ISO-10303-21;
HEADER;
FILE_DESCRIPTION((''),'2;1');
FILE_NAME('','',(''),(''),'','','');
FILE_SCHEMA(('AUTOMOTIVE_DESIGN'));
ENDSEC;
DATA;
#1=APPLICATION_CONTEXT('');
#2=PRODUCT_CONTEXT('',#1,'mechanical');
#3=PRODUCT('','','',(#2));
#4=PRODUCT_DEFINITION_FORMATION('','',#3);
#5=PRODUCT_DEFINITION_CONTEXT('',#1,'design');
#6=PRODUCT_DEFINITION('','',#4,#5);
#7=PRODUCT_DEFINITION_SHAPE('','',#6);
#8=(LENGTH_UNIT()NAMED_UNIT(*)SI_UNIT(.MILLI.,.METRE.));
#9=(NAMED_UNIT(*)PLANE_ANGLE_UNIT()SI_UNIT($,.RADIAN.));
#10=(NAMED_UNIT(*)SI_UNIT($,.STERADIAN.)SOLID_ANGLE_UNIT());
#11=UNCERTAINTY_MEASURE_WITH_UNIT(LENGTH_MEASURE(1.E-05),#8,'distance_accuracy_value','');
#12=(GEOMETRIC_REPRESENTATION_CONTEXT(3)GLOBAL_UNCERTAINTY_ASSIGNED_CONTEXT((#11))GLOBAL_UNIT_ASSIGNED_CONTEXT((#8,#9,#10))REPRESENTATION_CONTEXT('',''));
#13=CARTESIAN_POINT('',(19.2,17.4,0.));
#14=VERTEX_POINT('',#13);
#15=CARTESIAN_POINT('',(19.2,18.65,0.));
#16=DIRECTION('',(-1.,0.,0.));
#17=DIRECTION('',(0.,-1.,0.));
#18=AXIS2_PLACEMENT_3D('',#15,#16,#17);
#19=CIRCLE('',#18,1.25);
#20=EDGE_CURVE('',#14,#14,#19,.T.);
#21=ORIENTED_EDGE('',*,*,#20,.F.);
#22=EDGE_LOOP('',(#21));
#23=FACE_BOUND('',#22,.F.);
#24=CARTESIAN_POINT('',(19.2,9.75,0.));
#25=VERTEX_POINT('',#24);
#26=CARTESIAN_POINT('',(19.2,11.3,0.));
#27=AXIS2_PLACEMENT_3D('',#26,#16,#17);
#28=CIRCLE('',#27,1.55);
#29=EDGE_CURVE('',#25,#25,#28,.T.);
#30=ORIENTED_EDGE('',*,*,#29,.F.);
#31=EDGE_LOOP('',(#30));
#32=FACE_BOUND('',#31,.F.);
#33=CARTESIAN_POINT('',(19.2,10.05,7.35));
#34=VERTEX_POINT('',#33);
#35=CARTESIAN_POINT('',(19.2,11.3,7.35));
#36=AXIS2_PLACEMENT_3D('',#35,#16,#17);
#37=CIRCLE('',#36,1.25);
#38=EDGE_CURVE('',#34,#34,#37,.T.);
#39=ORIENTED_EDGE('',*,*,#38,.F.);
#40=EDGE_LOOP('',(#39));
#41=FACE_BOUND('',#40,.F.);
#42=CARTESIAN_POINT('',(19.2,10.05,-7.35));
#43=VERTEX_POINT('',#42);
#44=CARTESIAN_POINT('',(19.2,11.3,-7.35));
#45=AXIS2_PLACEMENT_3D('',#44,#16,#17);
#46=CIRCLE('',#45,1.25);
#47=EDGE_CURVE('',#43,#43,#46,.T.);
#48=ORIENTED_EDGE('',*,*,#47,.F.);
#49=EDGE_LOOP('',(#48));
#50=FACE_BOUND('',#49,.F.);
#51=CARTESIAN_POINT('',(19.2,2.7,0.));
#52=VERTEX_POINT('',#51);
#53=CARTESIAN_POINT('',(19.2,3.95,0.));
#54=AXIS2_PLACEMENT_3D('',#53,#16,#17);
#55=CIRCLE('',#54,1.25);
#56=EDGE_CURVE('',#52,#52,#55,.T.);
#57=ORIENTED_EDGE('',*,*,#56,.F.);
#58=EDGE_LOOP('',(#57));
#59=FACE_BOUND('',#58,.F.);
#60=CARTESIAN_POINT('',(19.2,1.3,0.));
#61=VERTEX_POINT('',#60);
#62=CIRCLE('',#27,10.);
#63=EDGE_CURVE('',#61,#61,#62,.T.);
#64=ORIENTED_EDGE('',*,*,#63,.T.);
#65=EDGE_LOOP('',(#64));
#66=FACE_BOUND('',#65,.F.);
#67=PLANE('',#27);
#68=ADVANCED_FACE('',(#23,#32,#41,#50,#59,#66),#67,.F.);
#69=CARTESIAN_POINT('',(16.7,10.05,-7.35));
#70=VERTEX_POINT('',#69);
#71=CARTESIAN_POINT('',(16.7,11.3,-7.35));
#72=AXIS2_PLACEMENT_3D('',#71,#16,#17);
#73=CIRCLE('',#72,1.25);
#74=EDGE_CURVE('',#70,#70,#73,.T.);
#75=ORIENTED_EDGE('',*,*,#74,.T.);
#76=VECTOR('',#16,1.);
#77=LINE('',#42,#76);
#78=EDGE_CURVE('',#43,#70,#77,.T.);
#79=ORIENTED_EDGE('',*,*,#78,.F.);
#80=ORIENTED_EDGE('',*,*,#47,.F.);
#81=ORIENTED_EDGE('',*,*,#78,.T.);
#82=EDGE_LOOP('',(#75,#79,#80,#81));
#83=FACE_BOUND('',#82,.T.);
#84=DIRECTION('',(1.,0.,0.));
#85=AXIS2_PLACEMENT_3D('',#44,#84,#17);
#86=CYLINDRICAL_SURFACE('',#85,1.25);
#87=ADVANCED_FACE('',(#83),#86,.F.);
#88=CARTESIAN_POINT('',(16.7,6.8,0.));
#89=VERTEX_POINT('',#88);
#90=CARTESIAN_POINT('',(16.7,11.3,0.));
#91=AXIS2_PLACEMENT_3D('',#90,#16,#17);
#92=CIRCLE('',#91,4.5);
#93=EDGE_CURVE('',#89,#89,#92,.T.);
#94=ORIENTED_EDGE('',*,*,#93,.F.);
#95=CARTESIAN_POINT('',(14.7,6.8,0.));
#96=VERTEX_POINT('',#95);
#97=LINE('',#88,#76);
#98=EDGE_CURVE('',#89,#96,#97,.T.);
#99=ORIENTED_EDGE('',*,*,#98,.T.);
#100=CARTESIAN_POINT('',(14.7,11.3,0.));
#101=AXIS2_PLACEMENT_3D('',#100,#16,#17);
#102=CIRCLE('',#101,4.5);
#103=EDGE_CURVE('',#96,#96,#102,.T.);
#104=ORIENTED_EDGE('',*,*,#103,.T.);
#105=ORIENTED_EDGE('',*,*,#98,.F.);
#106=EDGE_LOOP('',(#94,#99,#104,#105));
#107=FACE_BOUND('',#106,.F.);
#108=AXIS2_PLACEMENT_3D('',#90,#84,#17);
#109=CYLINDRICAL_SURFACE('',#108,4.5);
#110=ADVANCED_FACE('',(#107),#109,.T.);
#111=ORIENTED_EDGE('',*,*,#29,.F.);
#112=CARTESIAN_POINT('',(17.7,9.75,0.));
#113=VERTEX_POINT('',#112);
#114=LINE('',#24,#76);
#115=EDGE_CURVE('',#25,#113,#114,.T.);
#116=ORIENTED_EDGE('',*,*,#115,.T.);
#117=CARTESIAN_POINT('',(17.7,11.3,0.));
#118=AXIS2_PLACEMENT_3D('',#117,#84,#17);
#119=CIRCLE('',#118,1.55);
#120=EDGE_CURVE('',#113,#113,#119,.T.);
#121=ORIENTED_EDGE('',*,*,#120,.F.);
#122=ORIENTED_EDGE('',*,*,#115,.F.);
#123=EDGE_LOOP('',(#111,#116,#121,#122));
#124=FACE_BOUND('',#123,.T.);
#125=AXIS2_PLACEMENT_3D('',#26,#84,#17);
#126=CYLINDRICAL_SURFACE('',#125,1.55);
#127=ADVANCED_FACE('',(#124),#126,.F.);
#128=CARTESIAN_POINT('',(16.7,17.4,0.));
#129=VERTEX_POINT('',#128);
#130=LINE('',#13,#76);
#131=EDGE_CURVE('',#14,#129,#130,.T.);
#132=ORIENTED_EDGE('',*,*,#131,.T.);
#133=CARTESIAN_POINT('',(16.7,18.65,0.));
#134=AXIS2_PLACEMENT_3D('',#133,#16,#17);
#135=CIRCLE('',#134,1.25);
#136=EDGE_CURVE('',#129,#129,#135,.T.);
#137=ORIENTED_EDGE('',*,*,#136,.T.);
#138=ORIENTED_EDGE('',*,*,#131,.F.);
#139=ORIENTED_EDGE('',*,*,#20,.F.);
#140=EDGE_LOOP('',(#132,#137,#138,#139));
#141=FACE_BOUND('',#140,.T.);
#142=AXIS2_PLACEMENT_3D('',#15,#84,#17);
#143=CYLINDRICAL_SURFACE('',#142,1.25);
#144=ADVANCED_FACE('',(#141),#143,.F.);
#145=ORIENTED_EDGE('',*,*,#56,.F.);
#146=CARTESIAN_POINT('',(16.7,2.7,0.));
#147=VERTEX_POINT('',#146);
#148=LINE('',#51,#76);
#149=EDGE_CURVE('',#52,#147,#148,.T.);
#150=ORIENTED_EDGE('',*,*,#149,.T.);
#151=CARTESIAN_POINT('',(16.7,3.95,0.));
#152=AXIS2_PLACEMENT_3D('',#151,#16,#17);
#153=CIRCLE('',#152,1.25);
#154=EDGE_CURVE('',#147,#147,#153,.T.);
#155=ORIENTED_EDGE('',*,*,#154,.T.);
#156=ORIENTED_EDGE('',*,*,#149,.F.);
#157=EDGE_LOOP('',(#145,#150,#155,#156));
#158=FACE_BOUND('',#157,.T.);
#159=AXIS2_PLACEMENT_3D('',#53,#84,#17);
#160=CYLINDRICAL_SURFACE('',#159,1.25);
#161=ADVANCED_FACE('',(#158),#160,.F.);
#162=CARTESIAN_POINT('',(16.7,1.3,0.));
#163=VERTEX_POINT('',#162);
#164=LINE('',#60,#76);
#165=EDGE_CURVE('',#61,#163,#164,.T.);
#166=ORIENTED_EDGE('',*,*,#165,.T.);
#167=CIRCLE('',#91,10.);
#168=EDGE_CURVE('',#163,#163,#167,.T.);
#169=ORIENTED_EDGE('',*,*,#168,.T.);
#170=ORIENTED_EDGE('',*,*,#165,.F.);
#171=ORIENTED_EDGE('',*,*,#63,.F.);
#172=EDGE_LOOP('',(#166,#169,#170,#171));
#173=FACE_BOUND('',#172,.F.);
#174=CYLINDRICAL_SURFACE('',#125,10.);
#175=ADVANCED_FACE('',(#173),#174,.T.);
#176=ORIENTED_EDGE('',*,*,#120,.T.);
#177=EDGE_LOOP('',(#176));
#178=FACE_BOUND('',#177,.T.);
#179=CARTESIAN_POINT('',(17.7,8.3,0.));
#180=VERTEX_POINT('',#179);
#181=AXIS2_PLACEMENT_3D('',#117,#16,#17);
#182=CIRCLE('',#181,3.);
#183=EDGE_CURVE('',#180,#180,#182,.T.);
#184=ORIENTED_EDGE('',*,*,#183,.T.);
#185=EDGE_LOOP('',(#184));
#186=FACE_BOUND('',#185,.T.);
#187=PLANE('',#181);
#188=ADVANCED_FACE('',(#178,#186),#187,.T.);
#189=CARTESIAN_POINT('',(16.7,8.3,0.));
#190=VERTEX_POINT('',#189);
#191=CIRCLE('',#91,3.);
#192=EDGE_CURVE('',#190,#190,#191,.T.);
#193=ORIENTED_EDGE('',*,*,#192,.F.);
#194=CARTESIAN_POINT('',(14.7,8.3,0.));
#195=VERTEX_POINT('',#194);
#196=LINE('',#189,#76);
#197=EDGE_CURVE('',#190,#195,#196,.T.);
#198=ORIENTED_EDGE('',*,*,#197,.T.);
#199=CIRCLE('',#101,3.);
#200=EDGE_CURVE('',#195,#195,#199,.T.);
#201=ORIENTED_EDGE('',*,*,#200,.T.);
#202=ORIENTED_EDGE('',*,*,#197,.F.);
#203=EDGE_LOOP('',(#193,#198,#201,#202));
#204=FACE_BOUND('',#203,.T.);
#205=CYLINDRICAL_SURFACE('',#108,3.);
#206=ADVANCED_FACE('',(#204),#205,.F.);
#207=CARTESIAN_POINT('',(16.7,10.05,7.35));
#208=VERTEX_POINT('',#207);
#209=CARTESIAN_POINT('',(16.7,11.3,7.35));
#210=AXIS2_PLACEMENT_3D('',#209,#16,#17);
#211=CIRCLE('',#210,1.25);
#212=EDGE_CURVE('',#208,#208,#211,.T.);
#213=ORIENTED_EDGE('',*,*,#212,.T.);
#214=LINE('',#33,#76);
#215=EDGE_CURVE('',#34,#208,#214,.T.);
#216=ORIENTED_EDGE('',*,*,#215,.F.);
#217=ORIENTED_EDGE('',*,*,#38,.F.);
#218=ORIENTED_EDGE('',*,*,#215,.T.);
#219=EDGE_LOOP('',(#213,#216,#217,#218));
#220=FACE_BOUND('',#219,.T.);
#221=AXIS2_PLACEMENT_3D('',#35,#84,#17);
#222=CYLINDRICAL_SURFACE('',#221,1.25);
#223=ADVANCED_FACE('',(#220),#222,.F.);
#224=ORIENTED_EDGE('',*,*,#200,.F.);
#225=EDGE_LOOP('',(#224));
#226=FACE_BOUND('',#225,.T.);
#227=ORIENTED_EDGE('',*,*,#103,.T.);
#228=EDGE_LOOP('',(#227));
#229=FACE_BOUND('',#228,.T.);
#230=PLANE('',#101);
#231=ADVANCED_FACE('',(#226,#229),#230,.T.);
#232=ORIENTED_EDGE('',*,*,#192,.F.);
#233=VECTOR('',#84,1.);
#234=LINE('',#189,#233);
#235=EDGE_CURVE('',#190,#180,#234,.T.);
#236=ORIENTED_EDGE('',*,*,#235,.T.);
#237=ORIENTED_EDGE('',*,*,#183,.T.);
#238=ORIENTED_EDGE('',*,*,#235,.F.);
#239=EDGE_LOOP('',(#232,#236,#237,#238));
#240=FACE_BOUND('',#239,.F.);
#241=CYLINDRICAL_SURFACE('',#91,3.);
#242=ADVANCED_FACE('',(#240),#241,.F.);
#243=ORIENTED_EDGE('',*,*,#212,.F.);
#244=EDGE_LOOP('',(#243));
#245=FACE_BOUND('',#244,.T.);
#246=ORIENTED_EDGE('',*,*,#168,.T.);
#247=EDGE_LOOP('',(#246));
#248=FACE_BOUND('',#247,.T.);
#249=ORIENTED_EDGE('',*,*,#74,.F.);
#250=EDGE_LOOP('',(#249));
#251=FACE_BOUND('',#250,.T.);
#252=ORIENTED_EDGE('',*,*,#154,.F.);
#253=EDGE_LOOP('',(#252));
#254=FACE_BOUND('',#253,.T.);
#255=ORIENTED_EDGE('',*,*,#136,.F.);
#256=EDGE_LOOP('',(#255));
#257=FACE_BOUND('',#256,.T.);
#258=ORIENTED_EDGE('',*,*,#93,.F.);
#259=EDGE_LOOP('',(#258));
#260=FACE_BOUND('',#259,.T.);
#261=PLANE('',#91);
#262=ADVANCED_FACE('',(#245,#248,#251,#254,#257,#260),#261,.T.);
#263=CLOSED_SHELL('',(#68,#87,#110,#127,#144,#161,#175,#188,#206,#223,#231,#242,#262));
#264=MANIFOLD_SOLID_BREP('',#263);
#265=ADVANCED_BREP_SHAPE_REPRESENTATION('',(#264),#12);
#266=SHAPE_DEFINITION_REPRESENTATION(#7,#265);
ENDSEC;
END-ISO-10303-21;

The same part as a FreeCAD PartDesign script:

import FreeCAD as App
import Part
import Sketcher

V = App.Vector
Q = App.Units.Quantity

doc = App.newDocument("Part")
body = doc.addObject("PartDesign::Body", "Body")

# Sketch on YZ plane
sketch1 = body.newObject("Sketcher::SketchObject", "Sketch")
sketch1.AttachmentSupport = (doc.getObject("YZ_Plane"), [""])
sketch1.MapMode = "FlatFace"
sketch1.addGeometry([
    Part.Circle(V(0, 0, 0), V(0, 0, 1), 10),  # 0
    Part.Circle(V(0, -7.3, 0), V(0, 0, 1), 1.2),  # 1
    Part.Circle(V(-7.3, 0, 0), V(0, 0, 1), 1.2),  # 2
    Part.Circle(V(0, 0, 0), V(0, 0, 1), 1.6),  # 3
    Part.Circle(V(0, 7.3, 0), V(0, 0, 1), 1.2),  # 4
    Part.Circle(V(7.3, 0, 0), V(0, 0, 1), 1.2),  # 5
], False)
sketch1.addConstraint([
    Sketcher.Constraint("Coincident", 0, 3, -1, 1),
    Sketcher.Constraint("Coincident", 3, 3, -1, 1),
    Sketcher.Constraint("Equal", 1, 2),
    Sketcher.Constraint("Equal", 2, 4),
    Sketcher.Constraint("Equal", 4, 5),
    Sketcher.Constraint("Symmetric", 1, 3, 4, 3, -1, 1),
    Sketcher.Constraint("Symmetric", 2, 3, 5, 3, -1, 1),
    Sketcher.Constraint("PointOnObject", 1, 3, -2),
    Sketcher.Constraint("PointOnObject", 2, 3, -1),
    Sketcher.Constraint("Diameter", 0, Q("20 mm")),
    Sketcher.Constraint("Diameter", 1, Q("2.5 mm")),
    Sketcher.Constraint("Diameter", 3, Q("3.1 mm")),
    Sketcher.Constraint("DistanceY", 1, 3, 4, 3, Q("14.7 mm")),
    Sketcher.Constraint("DistanceX", 2, 3, 5, 3, Q("14.7 mm")),
])
pad1 = body.newObject("PartDesign::Pad", "Pad")
pad1.Profile = sketch1
pad1.Length = 2.5

# Sketch on YZ plane
sketch2 = body.newObject("Sketcher::SketchObject", "Sketch001")
sketch2.AttachmentSupport = (doc.getObject("YZ_Plane"), [""])
sketch2.MapMode = "FlatFace"
sketch2.AttachmentOffset = App.Placement(V(0, 0, 2.5), App.Rotation())
sketch2.addGeometry([
    Part.Circle(V(0, 0, 0), V(0, 0, 1), 4.5),
    Part.Circle(V(0, 0, 0), V(0, 0, 1), 3),
], False)
sketch2.addConstraint([
    Sketcher.Constraint("Coincident", 0, 3, -1, 1),
    Sketcher.Constraint("Coincident", 1, 3, -1, 1),
    Sketcher.Constraint("Diameter", 0, Q("9 mm")),
    Sketcher.Constraint("Diameter", 1, Q("6 mm")),
])
pad2 = body.newObject("PartDesign::Pad", "Pad001")
pad2.Profile = sketch2
pad2.Length = 2

# Sketch on YZ plane
sketch3 = body.newObject("Sketcher::SketchObject", "Sketch002")
sketch3.AttachmentSupport = (doc.getObject("YZ_Plane"), [""])
sketch3.MapMode = "FlatFace"
sketch3.AttachmentOffset = App.Placement(V(0, 0, 2.5), App.Rotation())
sketch3.addGeometry(Part.Circle(V(0, 0, 0), V(0, 0, 1), 3), False)
sketch3.addConstraint([
    Sketcher.Constraint("Coincident", 0, 3, -1, 1),
    Sketcher.Constraint("Diameter", 0, Q("6 mm")),
])
pocket1 = body.newObject("PartDesign::Pocket", "Pocket")
pocket1.Profile = sketch3
pocket1.Length = 1
body2 = doc.addObject("PartDesign::Body", "Body001")
doc.recompute()

body.Placement = App.Placement(V(19.2, 11.3, 0), App.Rotation(V(0, 0, 1), 180))
boolean = body2.newObject("PartDesign::Boolean", "Boolean")
boolean.Type = "Fuse"
boolean.addObjects([body])

doc.recompute()
